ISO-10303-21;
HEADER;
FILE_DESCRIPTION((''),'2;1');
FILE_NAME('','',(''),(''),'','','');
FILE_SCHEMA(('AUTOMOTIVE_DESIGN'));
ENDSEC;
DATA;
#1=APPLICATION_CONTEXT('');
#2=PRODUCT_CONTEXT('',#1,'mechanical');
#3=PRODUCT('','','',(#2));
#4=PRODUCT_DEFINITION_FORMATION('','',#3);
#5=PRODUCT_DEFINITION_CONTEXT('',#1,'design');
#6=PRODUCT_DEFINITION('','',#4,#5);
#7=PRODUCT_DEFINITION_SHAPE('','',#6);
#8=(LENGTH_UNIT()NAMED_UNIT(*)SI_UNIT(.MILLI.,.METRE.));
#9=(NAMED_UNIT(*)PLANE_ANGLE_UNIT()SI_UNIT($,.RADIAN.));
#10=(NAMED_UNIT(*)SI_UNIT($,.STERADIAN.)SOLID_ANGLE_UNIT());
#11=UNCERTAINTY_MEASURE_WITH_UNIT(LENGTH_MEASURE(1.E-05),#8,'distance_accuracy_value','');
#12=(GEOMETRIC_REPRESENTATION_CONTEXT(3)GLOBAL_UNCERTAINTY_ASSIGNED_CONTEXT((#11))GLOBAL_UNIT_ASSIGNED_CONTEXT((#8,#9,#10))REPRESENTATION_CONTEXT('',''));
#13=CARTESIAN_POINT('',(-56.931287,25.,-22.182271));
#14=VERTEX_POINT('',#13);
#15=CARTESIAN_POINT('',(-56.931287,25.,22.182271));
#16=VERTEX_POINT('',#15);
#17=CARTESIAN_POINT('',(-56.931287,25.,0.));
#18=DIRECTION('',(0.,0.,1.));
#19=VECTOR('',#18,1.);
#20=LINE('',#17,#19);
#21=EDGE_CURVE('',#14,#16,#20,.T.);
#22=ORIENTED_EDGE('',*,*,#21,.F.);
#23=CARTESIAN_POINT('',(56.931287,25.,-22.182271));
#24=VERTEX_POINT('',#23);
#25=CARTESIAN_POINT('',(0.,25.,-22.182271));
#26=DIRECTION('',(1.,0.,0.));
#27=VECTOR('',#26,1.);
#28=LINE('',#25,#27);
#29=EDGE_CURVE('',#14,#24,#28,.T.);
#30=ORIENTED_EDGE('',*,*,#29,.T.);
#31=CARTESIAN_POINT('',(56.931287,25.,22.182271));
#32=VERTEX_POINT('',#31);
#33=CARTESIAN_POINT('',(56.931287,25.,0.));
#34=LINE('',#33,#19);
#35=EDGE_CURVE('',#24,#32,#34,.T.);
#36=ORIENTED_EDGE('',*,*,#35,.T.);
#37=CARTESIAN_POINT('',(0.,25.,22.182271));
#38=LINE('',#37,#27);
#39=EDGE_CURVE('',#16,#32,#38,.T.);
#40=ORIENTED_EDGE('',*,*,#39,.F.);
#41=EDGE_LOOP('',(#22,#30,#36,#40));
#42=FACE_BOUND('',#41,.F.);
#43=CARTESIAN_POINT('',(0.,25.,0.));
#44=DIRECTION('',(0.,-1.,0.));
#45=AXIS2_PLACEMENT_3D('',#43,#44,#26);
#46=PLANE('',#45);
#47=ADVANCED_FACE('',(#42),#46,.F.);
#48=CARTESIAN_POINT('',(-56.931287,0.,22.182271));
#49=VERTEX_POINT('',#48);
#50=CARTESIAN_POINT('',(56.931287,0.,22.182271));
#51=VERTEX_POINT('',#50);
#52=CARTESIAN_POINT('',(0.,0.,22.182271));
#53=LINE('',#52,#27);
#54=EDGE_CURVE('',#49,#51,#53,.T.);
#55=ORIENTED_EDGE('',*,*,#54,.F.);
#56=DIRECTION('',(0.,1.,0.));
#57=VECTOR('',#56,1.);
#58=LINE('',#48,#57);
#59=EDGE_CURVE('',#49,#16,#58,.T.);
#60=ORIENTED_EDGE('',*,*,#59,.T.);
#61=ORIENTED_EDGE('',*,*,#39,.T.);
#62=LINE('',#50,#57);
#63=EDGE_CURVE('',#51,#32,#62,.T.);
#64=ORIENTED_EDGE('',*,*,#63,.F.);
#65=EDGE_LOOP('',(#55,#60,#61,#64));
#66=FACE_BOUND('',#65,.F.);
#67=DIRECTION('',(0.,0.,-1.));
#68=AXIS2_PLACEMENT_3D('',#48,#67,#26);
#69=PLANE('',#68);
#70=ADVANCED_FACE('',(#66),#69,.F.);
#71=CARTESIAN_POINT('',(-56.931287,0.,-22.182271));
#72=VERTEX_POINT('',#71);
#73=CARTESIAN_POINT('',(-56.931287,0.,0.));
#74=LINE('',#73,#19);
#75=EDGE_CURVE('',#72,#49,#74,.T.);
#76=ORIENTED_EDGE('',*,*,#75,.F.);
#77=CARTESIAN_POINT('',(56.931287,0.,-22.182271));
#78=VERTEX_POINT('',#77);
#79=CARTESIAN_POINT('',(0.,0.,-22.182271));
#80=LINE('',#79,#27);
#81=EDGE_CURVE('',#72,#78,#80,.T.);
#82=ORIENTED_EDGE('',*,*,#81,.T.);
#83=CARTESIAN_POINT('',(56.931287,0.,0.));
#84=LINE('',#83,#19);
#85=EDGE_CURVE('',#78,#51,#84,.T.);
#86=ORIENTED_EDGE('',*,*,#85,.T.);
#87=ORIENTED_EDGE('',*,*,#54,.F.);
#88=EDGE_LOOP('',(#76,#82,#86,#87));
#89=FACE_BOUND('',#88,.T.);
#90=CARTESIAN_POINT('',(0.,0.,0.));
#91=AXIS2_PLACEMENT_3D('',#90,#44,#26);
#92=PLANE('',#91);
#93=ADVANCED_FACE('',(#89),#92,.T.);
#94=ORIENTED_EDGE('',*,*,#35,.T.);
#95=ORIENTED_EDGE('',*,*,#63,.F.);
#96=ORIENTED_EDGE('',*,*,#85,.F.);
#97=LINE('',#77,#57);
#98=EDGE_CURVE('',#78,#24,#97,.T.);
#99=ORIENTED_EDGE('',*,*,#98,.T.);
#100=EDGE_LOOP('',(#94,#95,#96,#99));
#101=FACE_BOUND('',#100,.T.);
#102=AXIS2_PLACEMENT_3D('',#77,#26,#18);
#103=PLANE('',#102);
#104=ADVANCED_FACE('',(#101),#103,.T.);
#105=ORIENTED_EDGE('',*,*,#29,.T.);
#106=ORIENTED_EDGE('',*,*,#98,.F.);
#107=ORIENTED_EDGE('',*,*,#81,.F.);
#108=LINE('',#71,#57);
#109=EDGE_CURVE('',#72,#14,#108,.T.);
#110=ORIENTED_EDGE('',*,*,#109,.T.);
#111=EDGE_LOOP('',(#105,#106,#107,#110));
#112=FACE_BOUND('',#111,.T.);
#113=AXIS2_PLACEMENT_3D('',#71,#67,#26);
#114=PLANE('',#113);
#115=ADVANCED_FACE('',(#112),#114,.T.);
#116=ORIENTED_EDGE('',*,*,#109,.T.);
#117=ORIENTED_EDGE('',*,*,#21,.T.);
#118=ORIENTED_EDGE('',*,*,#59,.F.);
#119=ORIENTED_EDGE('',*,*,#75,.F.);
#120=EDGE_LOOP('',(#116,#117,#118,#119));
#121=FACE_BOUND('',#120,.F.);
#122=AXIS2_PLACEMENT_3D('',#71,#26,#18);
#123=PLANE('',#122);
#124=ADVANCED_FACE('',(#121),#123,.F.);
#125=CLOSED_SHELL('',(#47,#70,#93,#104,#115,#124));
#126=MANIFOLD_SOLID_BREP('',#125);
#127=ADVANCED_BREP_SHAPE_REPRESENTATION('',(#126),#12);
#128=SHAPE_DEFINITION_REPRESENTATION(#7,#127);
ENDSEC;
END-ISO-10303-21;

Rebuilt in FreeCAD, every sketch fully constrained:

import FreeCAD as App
import Part
import Sketcher
from FreeCAD import Vector
Q = App.Units.Quantity


def add_polygon(sketch, points):
    """Adds a closed chain of lines whose ends are joined by coincident constraints."""
    first, n = sketch.GeometryCount, len(points)
    for a, b in zip(points, points[1:] + points[:1]):
        sketch.addGeometry(Part.LineSegment(App.Vector(*a, 0), App.Vector(*b, 0)), False)
    for i in range(n):
        sketch.addConstraint(Sketcher.Constraint("Coincident", first + i, 2, first + (i + 1) % n, 1))

doc = App.newDocument("Part")
body = doc.addObject("PartDesign::Body", "Body")

# Sketch on XZ plane
sketch1 = body.newObject("Sketcher::SketchObject", "Sketch")
sketch1.AttachmentSupport = (doc.getObject("XZ_Plane"), [""])
sketch1.MapMode = "FlatFace"
add_polygon(sketch1, [(-56.931287, 22.182271), (-56.931287, -22.182271), (56.931287, -22.182271), (56.931287, 22.182271)])  # lines 0-3
sketch1.addConstraint(Sketcher.Constraint("Vertical", 0))
sketch1.addConstraint(Sketcher.Constraint("Horizontal", 1))
sketch1.addConstraint(Sketcher.Constraint("Vertical", 2))
sketch1.addConstraint(Sketcher.Constraint("Horizontal", 3))
sketch1.addConstraint(Sketcher.Constraint("Symmetric", 0, 2, 2, 2, -1, 1))
sketch1.addConstraint(Sketcher.Constraint("DistanceX", 1, 1, 1, 2, Q("113.862574 mm")))
sketch1.addConstraint(Sketcher.Constraint("DistanceY", 0, 2, 0, 1, Q("44.364542 mm")))
pad1 = body.newObject("PartDesign::Pad", "Pad")
pad1.Profile = sketch1
pad1.Length = 25
pad1.Reversed = True

doc.recompute()
